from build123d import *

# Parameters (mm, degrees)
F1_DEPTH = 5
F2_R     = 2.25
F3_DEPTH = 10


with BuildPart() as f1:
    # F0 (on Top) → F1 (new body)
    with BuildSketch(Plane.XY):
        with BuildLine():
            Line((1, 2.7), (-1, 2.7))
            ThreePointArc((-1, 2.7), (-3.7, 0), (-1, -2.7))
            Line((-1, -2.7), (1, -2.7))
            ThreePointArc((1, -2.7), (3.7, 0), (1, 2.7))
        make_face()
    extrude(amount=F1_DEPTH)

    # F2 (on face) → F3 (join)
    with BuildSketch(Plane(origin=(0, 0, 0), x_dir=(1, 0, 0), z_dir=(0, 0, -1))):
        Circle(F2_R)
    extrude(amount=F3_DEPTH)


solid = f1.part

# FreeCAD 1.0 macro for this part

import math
import FreeCAD as App
import Part
import Sketcher
Q = App.Units.Quantity

doc = App.newDocument("Part")
params = doc.addObject("Spreadsheet::Sheet", "Params")
for row, (alias, value) in enumerate([
    ("sketch1_radius", "2.7 mm"),
    ("sketch1_width", "2 mm"),
    ("pad1_length", "5 mm"),
    ("sketch2_diameter", "4.5 mm"),
    ("pad2_length", "10 mm"),
], start=1):
    params.set(f"A{row}", alias)
    params.set(f"B{row}", "=" + value)
    params.setAlias(f"B{row}", alias)

body = doc.addObject("PartDesign::Body", "Body")

# Sketch on XY plane
sketch1 = body.newObject("Sketcher::SketchObject", "Sketch")
sketch1.AttachmentSupport = (doc.getObject("XY_Plane"), [""])
sketch1.MapMode = "FlatFace"
sketch1.addGeometry([
    Part.LineSegment(App.Vector(1, 2.7, 0), App.Vector(-1, 2.7, 0)),
    Part.ArcOfCircle(Part.Circle(App.Vector(-1, 0, 0), App.Vector(0, 0, 1), 2.7), math.radians(90), math.radians(270)),
    Part.LineSegment(App.Vector(-1, -2.7, 0), App.Vector(1, -2.7, 0)),
    Part.ArcOfCircle(Part.Circle(App.Vector(1, 0, 0), App.Vector(0, 0, 1), 2.7), math.radians(-90), math.radians(90)),
], False)
sketch1.addConstraint([
    Sketcher.Constraint("Tangent", 0, 2, 1, 1),
    Sketcher.Constraint("Tangent", 1, 2, 2, 1),
    Sketcher.Constraint("Tangent", 2, 2, 3, 1),
    Sketcher.Constraint("Tangent", 3, 2, 0, 1),
    Sketcher.Constraint("Horizontal", 0),
    Sketcher.Constraint("Horizontal", 2),
    Sketcher.Constraint("Symmetric", 1, 3, 3, 3, -1, 1),
    Sketcher.Constraint("Radius", 1, Q("2.7 mm")),
    Sketcher.Constraint("DistanceX", 0, 2, 0, 1, Q("2 mm")),
])
sketch1.setExpression("Constraints[7]", "Params.sketch1_radius")
sketch1.setExpression("Constraints[8]", "Params.sketch1_width")
pad1 = body.newObject("PartDesign::Pad", "Pad")
pad1.Profile = sketch1
pad1.setExpression("Length", "Params.pad1_length")

# Sketch on XY plane
sketch2 = body.newObject("Sketcher::SketchObject", "Sketch001")
sketch2.AttachmentSupport = (doc.getObject("XY_Plane"), [""])
sketch2.MapMode = "FlatFace"
sketch2.addGeometry(Part.Circle(App.Vector(0, 0, 0), App.Vector(0, 0, 1), 2.2), False)
sketch2.addConstraint([
    Sketcher.Constraint("Coincident", 0, 3, -1, 1),
    Sketcher.Constraint("Diameter", 0, Q("4.5 mm")),
])
sketch2.setExpression("Constraints[1]", "Params.sketch2_diameter")
pad2 = body.newObject("PartDesign::Pad", "Pad001")
pad2.Profile = sketch2
pad2.setExpression("Length", "Params.pad2_length")
pad2.Reversed = True

doc.recompute()
